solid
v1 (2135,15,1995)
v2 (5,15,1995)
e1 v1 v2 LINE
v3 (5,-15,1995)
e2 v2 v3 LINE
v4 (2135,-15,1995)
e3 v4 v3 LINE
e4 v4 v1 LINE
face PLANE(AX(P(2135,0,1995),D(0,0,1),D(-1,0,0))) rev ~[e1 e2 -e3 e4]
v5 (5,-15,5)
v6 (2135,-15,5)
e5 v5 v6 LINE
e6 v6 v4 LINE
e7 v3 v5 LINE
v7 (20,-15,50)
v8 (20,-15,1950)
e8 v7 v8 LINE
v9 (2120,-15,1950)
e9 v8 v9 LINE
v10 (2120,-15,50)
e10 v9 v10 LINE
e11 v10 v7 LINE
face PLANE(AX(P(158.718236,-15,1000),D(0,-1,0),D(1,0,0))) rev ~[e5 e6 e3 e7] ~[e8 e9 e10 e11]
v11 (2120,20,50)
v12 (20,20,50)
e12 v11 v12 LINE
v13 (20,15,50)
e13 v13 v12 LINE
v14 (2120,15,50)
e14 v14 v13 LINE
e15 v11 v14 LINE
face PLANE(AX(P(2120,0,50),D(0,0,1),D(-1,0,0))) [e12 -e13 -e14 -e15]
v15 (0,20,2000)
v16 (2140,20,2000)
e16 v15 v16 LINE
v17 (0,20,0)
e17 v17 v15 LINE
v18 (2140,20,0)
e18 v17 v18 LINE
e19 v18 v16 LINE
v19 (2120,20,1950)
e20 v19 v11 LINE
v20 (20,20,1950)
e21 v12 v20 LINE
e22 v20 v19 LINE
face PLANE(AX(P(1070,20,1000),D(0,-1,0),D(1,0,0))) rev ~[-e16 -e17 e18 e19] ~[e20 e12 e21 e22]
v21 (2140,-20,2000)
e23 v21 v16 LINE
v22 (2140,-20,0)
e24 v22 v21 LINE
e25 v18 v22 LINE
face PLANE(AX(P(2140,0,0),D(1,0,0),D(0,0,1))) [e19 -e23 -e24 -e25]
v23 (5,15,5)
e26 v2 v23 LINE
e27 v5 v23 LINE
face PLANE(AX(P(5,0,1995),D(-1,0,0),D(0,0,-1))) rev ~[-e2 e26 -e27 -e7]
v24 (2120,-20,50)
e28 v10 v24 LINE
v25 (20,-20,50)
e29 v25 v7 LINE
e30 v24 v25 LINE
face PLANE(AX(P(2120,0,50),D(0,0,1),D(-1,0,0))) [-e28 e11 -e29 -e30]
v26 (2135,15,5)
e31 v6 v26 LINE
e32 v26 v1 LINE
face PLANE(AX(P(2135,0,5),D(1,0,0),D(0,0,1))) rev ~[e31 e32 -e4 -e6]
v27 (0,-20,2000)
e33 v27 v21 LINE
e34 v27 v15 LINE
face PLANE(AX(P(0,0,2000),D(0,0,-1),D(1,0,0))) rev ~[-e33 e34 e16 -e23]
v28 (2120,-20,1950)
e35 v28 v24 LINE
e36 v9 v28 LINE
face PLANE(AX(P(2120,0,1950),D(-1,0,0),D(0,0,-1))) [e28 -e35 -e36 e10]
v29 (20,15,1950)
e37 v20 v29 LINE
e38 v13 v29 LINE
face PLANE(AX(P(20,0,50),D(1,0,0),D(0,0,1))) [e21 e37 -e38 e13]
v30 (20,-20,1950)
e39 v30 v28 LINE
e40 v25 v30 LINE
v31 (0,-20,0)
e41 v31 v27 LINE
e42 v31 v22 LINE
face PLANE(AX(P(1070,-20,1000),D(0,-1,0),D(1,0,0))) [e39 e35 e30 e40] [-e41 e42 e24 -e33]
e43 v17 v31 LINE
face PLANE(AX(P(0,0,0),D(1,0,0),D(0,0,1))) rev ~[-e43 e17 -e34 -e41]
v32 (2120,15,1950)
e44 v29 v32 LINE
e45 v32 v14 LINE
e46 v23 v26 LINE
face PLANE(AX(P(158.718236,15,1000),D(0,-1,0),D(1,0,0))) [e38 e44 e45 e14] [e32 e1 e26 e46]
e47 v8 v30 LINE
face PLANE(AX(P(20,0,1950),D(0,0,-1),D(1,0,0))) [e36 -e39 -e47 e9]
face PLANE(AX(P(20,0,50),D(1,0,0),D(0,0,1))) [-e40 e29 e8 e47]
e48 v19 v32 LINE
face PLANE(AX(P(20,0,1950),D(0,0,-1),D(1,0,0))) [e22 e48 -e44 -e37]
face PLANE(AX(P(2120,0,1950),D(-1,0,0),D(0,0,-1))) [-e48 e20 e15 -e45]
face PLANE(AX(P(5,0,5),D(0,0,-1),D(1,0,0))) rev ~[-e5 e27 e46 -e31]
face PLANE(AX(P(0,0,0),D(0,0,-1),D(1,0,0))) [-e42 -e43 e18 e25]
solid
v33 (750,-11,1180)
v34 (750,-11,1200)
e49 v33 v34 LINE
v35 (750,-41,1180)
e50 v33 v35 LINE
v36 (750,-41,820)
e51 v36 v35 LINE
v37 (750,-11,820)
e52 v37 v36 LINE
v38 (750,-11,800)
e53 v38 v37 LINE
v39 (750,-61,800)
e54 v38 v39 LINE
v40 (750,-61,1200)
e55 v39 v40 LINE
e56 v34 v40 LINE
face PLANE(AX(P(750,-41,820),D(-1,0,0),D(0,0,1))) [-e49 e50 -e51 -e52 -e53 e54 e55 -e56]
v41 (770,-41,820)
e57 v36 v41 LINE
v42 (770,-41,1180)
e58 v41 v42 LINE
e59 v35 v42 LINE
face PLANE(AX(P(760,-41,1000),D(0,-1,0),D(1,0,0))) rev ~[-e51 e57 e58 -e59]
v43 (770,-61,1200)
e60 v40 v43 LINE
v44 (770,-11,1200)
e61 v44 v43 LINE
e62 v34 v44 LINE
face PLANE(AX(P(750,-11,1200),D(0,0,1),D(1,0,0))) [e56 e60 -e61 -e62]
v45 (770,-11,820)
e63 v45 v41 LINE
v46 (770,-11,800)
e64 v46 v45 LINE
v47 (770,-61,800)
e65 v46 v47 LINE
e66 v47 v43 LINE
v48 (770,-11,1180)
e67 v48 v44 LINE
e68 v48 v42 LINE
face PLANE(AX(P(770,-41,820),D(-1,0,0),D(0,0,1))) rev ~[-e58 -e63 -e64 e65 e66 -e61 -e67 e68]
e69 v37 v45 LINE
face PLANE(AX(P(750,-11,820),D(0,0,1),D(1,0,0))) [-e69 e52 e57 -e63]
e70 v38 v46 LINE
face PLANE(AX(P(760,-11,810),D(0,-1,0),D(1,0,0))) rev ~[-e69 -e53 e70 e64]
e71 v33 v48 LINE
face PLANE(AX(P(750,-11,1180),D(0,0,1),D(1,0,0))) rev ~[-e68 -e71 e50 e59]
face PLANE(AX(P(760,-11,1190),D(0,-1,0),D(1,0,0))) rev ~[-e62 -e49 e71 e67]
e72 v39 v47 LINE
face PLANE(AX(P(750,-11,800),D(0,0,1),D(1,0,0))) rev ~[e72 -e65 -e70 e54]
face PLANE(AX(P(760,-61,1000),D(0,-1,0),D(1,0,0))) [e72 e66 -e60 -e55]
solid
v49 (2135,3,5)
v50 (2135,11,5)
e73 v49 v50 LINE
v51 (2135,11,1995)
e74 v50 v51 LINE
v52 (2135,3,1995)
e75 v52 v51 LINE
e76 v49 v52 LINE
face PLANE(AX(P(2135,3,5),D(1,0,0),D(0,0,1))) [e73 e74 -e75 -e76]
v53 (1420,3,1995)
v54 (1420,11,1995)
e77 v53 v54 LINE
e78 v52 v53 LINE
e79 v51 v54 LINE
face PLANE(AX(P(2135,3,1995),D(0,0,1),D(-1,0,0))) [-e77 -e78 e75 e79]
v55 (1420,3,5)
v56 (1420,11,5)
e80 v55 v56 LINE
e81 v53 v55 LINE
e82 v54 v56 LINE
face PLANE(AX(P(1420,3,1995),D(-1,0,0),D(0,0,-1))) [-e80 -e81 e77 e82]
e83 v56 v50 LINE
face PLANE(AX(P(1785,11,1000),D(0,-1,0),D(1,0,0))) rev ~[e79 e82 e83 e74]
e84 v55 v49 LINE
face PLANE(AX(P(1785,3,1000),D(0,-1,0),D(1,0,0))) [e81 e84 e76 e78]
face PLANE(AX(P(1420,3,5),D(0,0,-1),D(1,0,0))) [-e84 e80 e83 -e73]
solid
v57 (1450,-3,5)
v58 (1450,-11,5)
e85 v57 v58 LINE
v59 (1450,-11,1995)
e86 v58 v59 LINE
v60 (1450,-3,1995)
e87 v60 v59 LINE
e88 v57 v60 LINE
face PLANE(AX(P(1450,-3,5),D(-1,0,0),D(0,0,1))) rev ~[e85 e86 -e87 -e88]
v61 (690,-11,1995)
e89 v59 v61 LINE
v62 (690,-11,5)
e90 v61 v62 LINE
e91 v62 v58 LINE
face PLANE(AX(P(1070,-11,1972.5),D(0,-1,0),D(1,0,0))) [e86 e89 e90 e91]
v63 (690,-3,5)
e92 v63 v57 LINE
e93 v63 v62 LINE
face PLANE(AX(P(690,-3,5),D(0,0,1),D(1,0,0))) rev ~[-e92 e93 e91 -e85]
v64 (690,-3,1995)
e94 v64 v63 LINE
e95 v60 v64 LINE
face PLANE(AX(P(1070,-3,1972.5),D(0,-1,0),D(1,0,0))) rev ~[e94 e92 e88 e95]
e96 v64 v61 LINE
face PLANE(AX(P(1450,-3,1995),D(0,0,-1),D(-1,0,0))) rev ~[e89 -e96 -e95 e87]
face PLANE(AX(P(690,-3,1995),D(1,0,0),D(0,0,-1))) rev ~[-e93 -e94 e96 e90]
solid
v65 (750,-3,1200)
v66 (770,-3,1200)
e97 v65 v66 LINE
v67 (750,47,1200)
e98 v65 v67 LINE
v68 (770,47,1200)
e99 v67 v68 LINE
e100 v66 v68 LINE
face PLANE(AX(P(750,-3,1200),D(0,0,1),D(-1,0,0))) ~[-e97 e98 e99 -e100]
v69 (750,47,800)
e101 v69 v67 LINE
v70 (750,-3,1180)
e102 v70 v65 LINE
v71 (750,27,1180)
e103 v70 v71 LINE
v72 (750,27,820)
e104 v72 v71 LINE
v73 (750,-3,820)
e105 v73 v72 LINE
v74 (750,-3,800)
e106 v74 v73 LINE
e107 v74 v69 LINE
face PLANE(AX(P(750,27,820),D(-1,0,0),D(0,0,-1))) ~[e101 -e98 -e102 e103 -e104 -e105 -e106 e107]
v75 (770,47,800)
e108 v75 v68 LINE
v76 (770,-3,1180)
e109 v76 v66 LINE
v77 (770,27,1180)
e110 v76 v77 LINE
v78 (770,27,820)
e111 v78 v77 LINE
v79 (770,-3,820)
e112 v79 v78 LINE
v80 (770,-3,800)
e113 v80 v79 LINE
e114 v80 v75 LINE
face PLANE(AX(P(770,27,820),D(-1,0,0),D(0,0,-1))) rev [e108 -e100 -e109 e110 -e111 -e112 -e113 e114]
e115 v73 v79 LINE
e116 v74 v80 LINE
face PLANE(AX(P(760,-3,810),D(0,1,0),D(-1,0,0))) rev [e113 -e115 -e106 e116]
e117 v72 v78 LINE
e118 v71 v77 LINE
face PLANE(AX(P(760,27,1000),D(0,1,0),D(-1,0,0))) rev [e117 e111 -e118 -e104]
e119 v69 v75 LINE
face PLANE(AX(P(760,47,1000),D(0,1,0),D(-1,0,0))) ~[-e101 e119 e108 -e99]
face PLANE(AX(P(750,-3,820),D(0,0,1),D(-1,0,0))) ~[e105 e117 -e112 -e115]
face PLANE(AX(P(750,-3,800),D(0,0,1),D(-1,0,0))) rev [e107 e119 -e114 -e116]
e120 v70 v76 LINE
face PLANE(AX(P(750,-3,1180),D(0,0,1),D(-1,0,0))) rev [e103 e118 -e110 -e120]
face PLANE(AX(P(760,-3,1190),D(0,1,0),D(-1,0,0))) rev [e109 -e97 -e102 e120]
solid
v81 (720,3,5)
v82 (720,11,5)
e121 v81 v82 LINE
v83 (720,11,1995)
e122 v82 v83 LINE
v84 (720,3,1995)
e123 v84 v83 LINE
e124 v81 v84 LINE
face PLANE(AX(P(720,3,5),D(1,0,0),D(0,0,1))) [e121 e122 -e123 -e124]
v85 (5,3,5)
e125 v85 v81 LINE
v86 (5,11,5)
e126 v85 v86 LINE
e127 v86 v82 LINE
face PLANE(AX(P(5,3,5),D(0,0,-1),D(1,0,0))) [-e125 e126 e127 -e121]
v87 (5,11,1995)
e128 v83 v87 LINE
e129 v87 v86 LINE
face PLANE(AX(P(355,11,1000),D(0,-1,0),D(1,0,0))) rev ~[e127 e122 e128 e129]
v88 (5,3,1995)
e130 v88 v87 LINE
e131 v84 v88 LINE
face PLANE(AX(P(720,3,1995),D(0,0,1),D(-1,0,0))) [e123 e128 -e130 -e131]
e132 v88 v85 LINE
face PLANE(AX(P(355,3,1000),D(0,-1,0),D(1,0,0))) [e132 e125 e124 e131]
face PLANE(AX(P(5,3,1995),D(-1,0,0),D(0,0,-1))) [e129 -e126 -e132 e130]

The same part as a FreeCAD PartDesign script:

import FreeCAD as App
import Part
import Sketcher
Q = App.Units.Quantity

doc = App.newDocument("Part")
body = doc.addObject("PartDesign::Body", "Body")

sketch1 = body.newObject("Sketcher::SketchObject", "Sketch")
sketch1.AttachmentSupport = (doc.getObject("XZ_Plane"), [""])
sketch1.MapMode = "FlatFace"
sketch1.addGeometry(Part.LineSegment(App.Vector(0, 2000, 0), App.Vector(0, 0, 0)), False)
sketch1.addGeometry(Part.LineSegment(App.Vector(0, 0, 0), App.Vector(2140, 0, 0)), False)
sketch1.addGeometry(Part.LineSegment(App.Vector(2140, 0, 0), App.Vector(2140, 2000, 0)), False)
sketch1.addGeometry(Part.LineSegment(App.Vector(2140, 2000, 0), App.Vector(0, 2000, 0)), False)
sketch1.addGeometry(Part.LineSegment(App.Vector(20, 50, 0), App.Vector(20, 1950, 0)), False)
sketch1.addGeometry(Part.LineSegment(App.Vector(20, 1950, 0), App.Vector(2120, 1950, 0)), False)
sketch1.addGeometry(Part.LineSegment(App.Vector(2120, 1950, 0), App.Vector(2120, 50, 0)), False)
sketch1.addGeometry(Part.LineSegment(App.Vector(2120, 50, 0), App.Vector(20, 50, 0)), False)
sketch1.addConstraint(Sketcher.Constraint("Coincident", 0, 2, 1, 1))
sketch1.addConstraint(Sketcher.Constraint("Coincident", 1, 2, 2, 1))
sketch1.addConstraint(Sketcher.Constraint("Coincident", 2, 2, 3, 1))
sketch1.addConstraint(Sketcher.Constraint("Coincident", 3, 2, 0, 1))
sketch1.addConstraint(Sketcher.Constraint("Coincident", 4, 2, 5, 1))
sketch1.addConstraint(Sketcher.Constraint("Coincident", 5, 2, 6, 1))
sketch1.addConstraint(Sketcher.Constraint("Coincident", 6, 2, 7, 1))
sketch1.addConstraint(Sketcher.Constraint("Coincident", 7, 2, 4, 1))
sketch1.addConstraint(Sketcher.Constraint("Vertical", 0))
sketch1.addConstraint(Sketcher.Constraint("Horizontal", 1))
sketch1.addConstraint(Sketcher.Constraint("Vertical", 2))
sketch1.addConstraint(Sketcher.Constraint("Horizontal", 3))
sketch1.addConstraint(Sketcher.Constraint("Vertical", 4))
sketch1.addConstraint(Sketcher.Constraint("Horizontal", 5))
sketch1.addConstraint(Sketcher.Constraint("Vertical", 6))
sketch1.addConstraint(Sketcher.Constraint("Horizontal", 7))
sketch1.addConstraint(Sketcher.Constraint("Coincident", 0, 2, -1, 1))
sketch1.addConstraint(Sketcher.Constraint("DistanceX", 1, 1, 1, 2, Q("2140 mm")))
sketch1.addConstraint(Sketcher.Constraint("DistanceX", 5, 1, 5, 2, Q("2100 mm")))
sketch1.addConstraint(Sketcher.Constraint("DistanceY", 0, 2, 0, 1, Q("2000 mm")))
sketch1.addConstraint(Sketcher.Constraint("DistanceY", 4, 1, 4, 2, Q("1900 mm")))
sketch1.addConstraint(Sketcher.Constraint("DistanceX", -1, 1, 4, 2, Q("20 mm")))
sketch1.addConstraint(Sketcher.Constraint("DistanceY", -1, 1, 4, 2, Q("1950 mm")))
pad1 = body.newObject("PartDesign::Pad", "Pad")
pad1.Profile = sketch1
pad1.Type = "TwoLengths"
pad1.Length = 20
pad1.Length2 = 20

sketch2 = body.newObject("Sketcher::SketchObject", "Sketch001")
sketch2.AttachmentSupport = (doc.getObject("XZ_Plane"), [""])
sketch2.MapMode = "FlatFace"
sketch2.addGeometry(Part.LineSegment(App.Vector(5, 1995, 0), App.Vector(5, 5, 0)), False)
sketch2.addGeometry(Part.LineSegment(App.Vector(5, 5, 0), App.Vector(2135, 5, 0)), False)
sketch2.addGeometry(Part.LineSegment(App.Vector(2135, 5, 0), App.Vector(2135, 1995, 0)), False)
sketch2.addGeometry(Part.LineSegment(App.Vector(2135, 1995, 0), App.Vector(5, 1995, 0)), False)
sketch2.addGeometry(Part.LineSegment(App.Vector(20, 50, 0), App.Vector(20, 1950, 0)), False)
sketch2.addGeometry(Part.LineSegment(App.Vector(20, 1950, 0), App.Vector(2120, 1950, 0)), False)
sketch2.addGeometry(Part.LineSegment(App.Vector(2120, 1950, 0), App.Vector(2120, 50, 0)), False)
sketch2.addGeometry(Part.LineSegment(App.Vector(2120, 50, 0), App.Vector(20, 50, 0)), False)
sketch2.addConstraint(Sketcher.Constraint("Coincident", 0, 2, 1, 1))
sketch2.addConstraint(Sketcher.Constraint("Coincident", 1, 2, 2, 1))
sketch2.addConstraint(Sketcher.Constraint("Coincident", 2, 2, 3, 1))
sketch2.addConstraint(Sketcher.Constraint("Coincident", 3, 2, 0, 1))
sketch2.addConstraint(Sketcher.Constraint("Coincident", 4, 2, 5, 1))
sketch2.addConstraint(Sketcher.Constraint("Coincident", 5, 2, 6, 1))
sketch2.addConstraint(Sketcher.Constraint("Coincident", 6, 2, 7, 1))
sketch2.addConstraint(Sketcher.Constraint("Coincident", 7, 2, 4, 1))
sketch2.addConstraint(Sketcher.Constraint("Vertical", 0))
sketch2.addConstraint(Sketcher.Constraint("Horizontal", 1))
sketch2.addConstraint(Sketcher.Constraint("Vertical", 2))
sketch2.addConstraint(Sketcher.Constraint("Horizontal", 3))
sketch2.addConstraint(Sketcher.Constraint("Vertical", 4))
sketch2.addConstraint(Sketcher.Constraint("Horizontal", 5))
sketch2.addConstraint(Sketcher.Constraint("Vertical", 6))
sketch2.addConstraint(Sketcher.Constraint("Horizontal", 7))
sketch2.addConstraint(Sketcher.Constraint("DistanceX", 1, 1, 1, 2, Q("2130 mm")))
sketch2.addConstraint(Sketcher.Constraint("DistanceX", 5, 1, 5, 2, Q("2100 mm")))
sketch2.addConstraint(Sketcher.Constraint("DistanceY", 0, 2, 0, 1, Q("1990 mm")))
sketch2.addConstraint(Sketcher.Constraint("DistanceY", 4, 1, 4, 2, Q("1900 mm")))
sketch2.addConstraint(Sketcher.Constraint("DistanceX", -1, 1, 0, 2, Q("5 mm")))
sketch2.addConstraint(Sketcher.Constraint("DistanceY", -1, 1, 0, 2, Q("5 mm")))
sketch2.addConstraint(Sketcher.Constraint("DistanceX", -1, 1, 4, 2, Q("20 mm")))
sketch2.addConstraint(Sketcher.Constraint("DistanceY", -1, 1, 4, 2, Q("1950 mm")))
pocket1 = body.newObject("PartDesign::Pocket", "Pocket")
pocket1.Profile = sketch2
pocket1.Type = "TwoLengths"
pocket1.Length = 15
pocket1.Length2 = 15
pocket1.Reversed = True
body2 = doc.addObject("PartDesign::Body", "Body001")

sketch3 = body2.newObject("Sketcher::SketchObject", "Sketch002")
sketch3.AttachmentSupport = (doc.getObject("XZ_Plane001"), [""])
sketch3.MapMode = "FlatFace"
sketch3.AttachmentOffset = App.Placement(App.Vector(0, 0, -3), App.Rotation())
sketch3.addGeometry(Part.LineSegment(App.Vector(5, 1995, 0), App.Vector(5, 5, 0)), False)
sketch3.addGeometry(Part.LineSegment(App.Vector(5, 5, 0), App.Vector(720, 5, 0)), False)
sketch3.addGeometry(Part.LineSegment(App.Vector(720, 5, 0), App.Vector(720, 1995, 0)), False)
sketch3.addGeometry(Part.LineSegment(App.Vector(720, 1995, 0), App.Vector(5, 1995, 0)), False)
sketch3.addConstraint(Sketcher.Constraint("Coincident", 0, 2, 1, 1))
sketch3.addConstraint(Sketcher.Constraint("Coincident", 1, 2, 2, 1))
sketch3.addConstraint(Sketcher.Constraint("Coincident", 2, 2, 3, 1))
sketch3.addConstraint(Sketcher.Constraint("Coincident", 3, 2, 0, 1))
sketch3.addConstraint(Sketcher.Constraint("Vertical", 0))
sketch3.addConstraint(Sketcher.Constraint("Horizontal", 1))
sketch3.addConstraint(Sketcher.Constraint("Vertical", 2))
sketch3.addConstraint(Sketcher.Constraint("Horizontal", 3))
sketch3.addConstraint(Sketcher.Constraint("DistanceX", 1, 1, 1, 2, Q("715 mm")))
sketch3.addConstraint(Sketcher.Constraint("DistanceY", 0, 2, 0, 1, Q("1990 mm")))
sketch3.addConstraint(Sketcher.Constraint("DistanceX", -1, 1, 0, 2, Q("5 mm")))
sketch3.addConstraint(Sketcher.Constraint("DistanceY", -1, 1, 0, 2, Q("5 mm")))
pad2 = body2.newObject("PartDesign::Pad", "Pad001")
pad2.Profile = sketch3
pad2.Length = 8
pad2.Reversed = True
body3 = doc.addObject("PartDesign::Body", "Body002")

sketch4 = body3.newObject("Sketcher::SketchObject", "Sketch003")
sketch4.AttachmentSupport = (doc.getObject("XZ_Plane002"), [""])
sketch4.MapMode = "FlatFace"
sketch4.AttachmentOffset = App.Placement(App.Vector(0, 0, -3), App.Rotation())
sketch4.addGeometry(Part.LineSegment(App.Vector(2135, 5, 0), App.Vector(2135, 1995, 0)), False)
sketch4.addGeometry(Part.LineSegment(App.Vector(2135, 1995, 0), App.Vector(1420, 1995, 0)), False)
sketch4.addGeometry(Part.LineSegment(App.Vector(1420, 1995, 0), App.Vector(1420, 5, 0)), False)
sketch4.addGeometry(Part.LineSegment(App.Vector(1420, 5, 0), App.Vector(2135, 5, 0)), False)
sketch4.addConstraint(Sketcher.Constraint("Coincident", 0, 2, 1, 1))
sketch4.addConstraint(Sketcher.Constraint("Coincident", 1, 2, 2, 1))
sketch4.addConstraint(Sketcher.Constraint("Coincident", 2, 2, 3, 1))
sketch4.addConstraint(Sketcher.Constraint("Coincident", 3, 2, 0, 1))
sketch4.addConstraint(Sketcher.Constraint("Vertical", 0))
sketch4.addConstraint(Sketcher.Constraint("Horizontal", 1))
sketch4.addConstraint(Sketcher.Constraint("Vertical", 2))
sketch4.addConstraint(Sketcher.Constraint("Horizontal", 3))
sketch4.addConstraint(Sketcher.Constraint("DistanceX", 1, 2, 1, 1, Q("715 mm")))
sketch4.addConstraint(Sketcher.Constraint("DistanceY", 0, 1, 0, 2, Q("1990 mm")))
sketch4.addConstraint(Sketcher.Constraint("DistanceX", -1, 1, 0, 2, Q("2135 mm")))
sketch4.addConstraint(Sketcher.Constraint("DistanceY", -1, 1, 0, 2, Q("1995 mm")))
pad3 = body3.newObject("PartDesign::Pad", "Pad002")
pad3.Profile = sketch4
pad3.Length = 8
pad3.Reversed = True
body4 = doc.addObject("PartDesign::Body", "Body003")

sketch5 = body4.newObject("Sketcher::SketchObject", "Sketch004")
sketch5.AttachmentSupport = (doc.getObject("XZ_Plane003"), [""])
sketch5.MapMode = "FlatFace"
sketch5.AttachmentOffset = App.Placement(App.Vector(0, 0, 3), App.Rotation())
sketch5.addGeometry(Part.LineSegment(App.Vector(1450, 1995, 0), App.Vector(690, 1995, 0)), False)
sketch5.addGeometry(Part.LineSegment(App.Vector(690, 1995, 0), App.Vector(690, 5, 0)), False)
sketch5.addGeometry(Part.LineSegment(App.Vector(690, 5, 0), App.Vector(1450, 5, 0)), False)
sketch5.addGeometry(Part.LineSegment(App.Vector(1450, 5, 0), App.Vector(1450, 1995, 0)), False)
sketch5.addConstraint(Sketcher.Constraint("Coincident", 0, 2, 1, 1))
sketch5.addConstraint(Sketcher.Constraint("Coincident", 1, 2, 2, 1))
sketch5.addConstraint(Sketcher.Constraint("Coincident", 2, 2, 3, 1))
sketch5.addConstraint(Sketcher.Constraint("Coincident", 3, 2, 0, 1))
sketch5.addConstraint(Sketcher.Constraint("Horizontal", 0))
sketch5.addConstraint(Sketcher.Constraint("Vertical", 1))
sketch5.addConstraint(Sketcher.Constraint("Horizontal", 2))
sketch5.addConstraint(Sketcher.Constraint("Vertical", 3))
sketch5.addConstraint(Sketcher.Constraint("DistanceX", 0, 2, 0, 1, Q("760 mm")))
sketch5.addConstraint(Sketcher.Constraint("DistanceY", 1, 2, 1, 1, Q("1990 mm")))
sketch5.addConstraint(Sketcher.Constraint("DistanceX", -1, 1, 0, 2, Q("690 mm")))
sketch5.addConstraint(Sketcher.Constraint("DistanceY", -1, 1, 0, 2, Q("1995 mm")))
pad4 = body4.newObject("PartDesign::Pad", "Pad003")
pad4.Profile = sketch5
pad4.Length = 8
body5 = doc.addObject("PartDesign::Body", "Body004")

sketch6 = body5.newObject("Sketcher::SketchObject", "Sketch005")
sketch6.AttachmentSupport = (doc.getObject("XZ_Plane004"), [""])
sketch6.MapMode = "FlatFace"
sketch6.AttachmentOffset = App.Placement(App.Vector(0, 0, 11), App.Rotation())
sketch6.addGeometry(Part.LineSegment(App.Vector(750, 1200, 0), App.Vector(750, 1180, 0)), False)
sketch6.addGeometry(Part.LineSegment(App.Vector(750, 1180, 0), App.Vector(770, 1180, 0)), False)
sketch6.addGeometry(Part.LineSegment(App.Vector(770, 1180, 0), App.Vector(770, 1200, 0)), False)
sketch6.addGeometry(Part.LineSegment(App.Vector(770, 1200, 0), App.Vector(750, 1200, 0)), False)
sketch6.addConstraint(Sketcher.Constraint("Coincident", 0, 2, 1, 1))
sketch6.addConstraint(Sketcher.Constraint("Coincident", 1, 2, 2, 1))
sketch6.addConstraint(Sketcher.Constraint("Coincident", 2, 2, 3, 1))
sketch6.addConstraint(Sketcher.Constraint("Coincident", 3, 2, 0, 1))
sketch6.addConstraint(Sketcher.Constraint("Vertical", 0))
sketch6.addConstraint(Sketcher.Constraint("Horizontal", 1))
sketch6.addConstraint(Sketcher.Constraint("Vertical", 2))
sketch6.addConstraint(Sketcher.Constraint("Horizontal", 3))
sketch6.addConstraint(Sketcher.Constraint("Equal", 3, 0))
sketch6.addConstraint(Sketcher.Constraint("DistanceX", 1, 1, 1, 2, Q("20 mm")))
sketch6.addConstraint(Sketcher.Constraint("DistanceX", -1, 1, 0, 2, Q("750 mm")))
sketch6.addConstraint(Sketcher.Constraint("DistanceY", -1, 1, 0, 2, Q("1180 mm")))
pad5 = body5.newObject("PartDesign::Pad", "Pad004")
pad5.Profile = sketch6
pad5.Length = 50
body6 = doc.addObject("PartDesign::Body", "Body005")

sketch7 = body6.newObject("Sketcher::SketchObject", "Sketch006")
sketch7.AttachmentSupport = (doc.getObject("XZ_Plane005"), [""])
sketch7.MapMode = "FlatFace"
sketch7.AttachmentOffset = App.Placement(App.Vector(0, 0, 11), App.Rotation())
sketch7.addGeometry(Part.LineSegment(App.Vector(750, 820, 0), App.Vector(750, 800, 0)), False)
sketch7.addGeometry(Part.LineSegment(App.Vector(750, 800, 0), App.Vector(770, 800, 0)), False)
sketch7.addGeometry(Part.LineSegment(App.Vector(770, 800, 0), App.Vector(770, 820, 0)), False)
sketch7.addGeometry(Part.LineSegment(App.Vector(770, 820, 0), App.Vector(750, 820, 0)), False)
sketch7.addConstraint(Sketcher.Constraint("Coincident", 0, 2, 1, 1))
sketch7.addConstraint(Sketcher.Constraint("Coincident", 1, 2, 2, 1))
sketch7.addConstraint(Sketcher.Constraint("Coincident", 2, 2, 3, 1))
sketch7.addConstraint(Sketcher.Constraint("Coincident", 3, 2, 0, 1))
sketch7.addConstraint(Sketcher.Constraint("Vertical", 0))
sketch7.addConstraint(Sketcher.Constraint("Horizontal", 1))
sketch7.addConstraint(Sketcher.Constraint("Vertical", 2))
sketch7.addConstraint(Sketcher.Constraint("Horizontal", 3))
sketch7.addConstraint(Sketcher.Constraint("Equal", 3, 0))
sketch7.addConstraint(Sketcher.Constraint("DistanceX", 1, 1, 1, 2, Q("20 mm")))
sketch7.addConstraint(Sketcher.Constraint("DistanceX", -1, 1, 0, 2, Q("750 mm")))
sketch7.addConstraint(Sketcher.Constraint("DistanceY", -1, 1, 0, 2, Q("800 mm")))
pad6 = body6.newObject("PartDesign::Pad", "Pad005")
pad6.Profile = sketch7
pad6.Length = 50
body5.AllowCompound = True
doc.recompute()

boolean = body5.newObject("PartDesign::Boolean", "Boolean")
boolean.Type = "Fuse"
boolean.addObjects([body6])

sketch8 = body5.newObject("Sketcher::SketchObject", "Sketch007")
sketch8.AttachmentSupport = (doc.getObject("XZ_Plane004"), [""])
sketch8.MapMode = "FlatFace"
sketch8.AttachmentOffset = App.Placement(App.Vector(0, 0, 41), App.Rotation())
sketch8.addGeometry(Part.LineSegment(App.Vector(750, 1180, 0), App.Vector(750, 820, 0)), False)
sketch8.addGeometry(Part.LineSegment(App.Vector(750, 820, 0), App.Vector(770, 820, 0)), False)
sketch8.addGeometry(Part.LineSegment(App.Vector(770, 820, 0), App.Vector(770, 1180, 0)), False)
sketch8.addGeometry(Part.LineSegment(App.Vector(770, 1180, 0), App.Vector(750, 1180, 0)), False)
sketch8.addConstraint(Sketcher.Constraint("Coincident", 0, 2, 1, 1))
sketch8.addConstraint(Sketcher.Constraint("Coincident", 1, 2, 2, 1))
sketch8.addConstraint(Sketcher.Constraint("Coincident", 2, 2, 3, 1))
sketch8.addConstraint(Sketcher.Constraint("Coincident", 3, 2, 0, 1))
sketch8.addConstraint(Sketcher.Constraint("Vertical", 0))
sketch8.addConstraint(Sketcher.Constraint("Horizontal", 1))
sketch8.addConstraint(Sketcher.Constraint("Vertical", 2))
sketch8.addConstraint(Sketcher.Constraint("Horizontal", 3))
sketch8.addConstraint(Sketcher.Constraint("DistanceX", 1, 1, 1, 2, Q("20 mm")))
sketch8.addConstraint(Sketcher.Constraint("DistanceY", 0, 2, 0, 1, Q("360 mm")))
sketch8.addConstraint(Sketcher.Constraint("DistanceX", -1, 1, 0, 2, Q("750 mm")))
sketch8.addConstraint(Sketcher.Constraint("DistanceY", -1, 1, 0, 2, Q("820 mm")))
pad7 = body5.newObject("PartDesign::Pad", "Pad006")
pad7.Profile = sketch8
pad7.Length = 20
body7 = doc.addObject("PartDesign::Body", "Body006")
doc.recompute()

mirroring = doc.addObject("Part::Mirroring", "Mirroring")
mirroring.Source = body5
mirroring.Base = App.Vector(0, -7, 0)
mirroring.Normal = App.Vector(0, -1, 0)
body7.BaseFeature = mirroring
doc.recompute()
mirroring.Visibility = False

doc.recompute()
